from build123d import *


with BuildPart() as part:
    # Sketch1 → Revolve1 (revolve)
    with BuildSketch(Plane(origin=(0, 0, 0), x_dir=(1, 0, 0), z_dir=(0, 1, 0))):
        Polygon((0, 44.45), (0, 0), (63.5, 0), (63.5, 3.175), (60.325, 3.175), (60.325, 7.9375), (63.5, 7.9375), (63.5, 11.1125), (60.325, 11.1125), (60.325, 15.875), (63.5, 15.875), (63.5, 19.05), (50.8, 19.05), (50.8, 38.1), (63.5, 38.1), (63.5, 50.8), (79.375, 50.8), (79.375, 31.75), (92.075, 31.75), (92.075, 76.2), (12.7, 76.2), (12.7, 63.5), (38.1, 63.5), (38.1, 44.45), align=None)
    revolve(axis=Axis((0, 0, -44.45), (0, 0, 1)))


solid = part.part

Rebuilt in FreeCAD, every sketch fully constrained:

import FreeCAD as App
import Part
import Sketcher

V = App.Vector
Q = App.Units.Quantity

doc = App.newDocument("Part")
params = doc.addObject("Spreadsheet::Sheet", "Params")
for row, (alias, value) in enumerate([
    ("sketch1_width", "1 in"),
    ("sketch1_width2", "2.5 in"),
    ("sketch1_width3", "0.5 in"),
    ("sketch1_width4", "1.5 in"),
    ("sketch1_width5", "0.625 in"),
    ("revolution_angle", "360 deg"),
], start=1):
    params.set(f"A{row}", alias)
    params.set(f"B{row}", "=" + value)
    params.setAlias(f"B{row}", alias)

body = doc.addObject("PartDesign::Body", "Body")

sketch1 = body.newObject("Sketcher::SketchObject", "Sketch")
sketch1.AttachmentSupport = (doc.getObject("XZ_Plane"), [""])
sketch1.MapMode = "FlatFace"
sketch1.addGeometry([
    Part.LineSegment(V(0, -44.5, 0), V(0, 0, 0)),
    Part.LineSegment(V(0, 0, 0), V(63.5, 0, 0)),
    Part.LineSegment(V(63.5, 0, 0), V(63.5, -3.2, 0)),
    Part.LineSegment(V(63.5, -3.2, 0), V(60.3, -3.2, 0)),
    Part.LineSegment(V(60.3, -3.2, 0), V(60.3, -7.9, 0)),
    Part.LineSegment(V(60.3, -7.9, 0), V(63.5, -7.9, 0)),
    Part.LineSegment(V(63.5, -7.9, 0), V(63.5, -11.1, 0)),
    Part.LineSegment(V(63.5, -11.1, 0), V(60.3, -11.1, 0)),
    Part.LineSegment(V(60.3, -11.1, 0), V(60.3, -15.9, 0)),
    Part.LineSegment(V(60.3, -15.9, 0), V(63.5, -15.9, 0)),
    Part.LineSegment(V(63.5, -15.9, 0), V(63.5, -19.1, 0)),
    Part.LineSegment(V(63.5, -19.1, 0), V(50.8, -19.1, 0)),
    Part.LineSegment(V(50.8, -19.1, 0), V(50.8, -38.1, 0)),
    Part.LineSegment(V(50.8, -38.1, 0), V(63.5, -38.1, 0)),
    Part.LineSegment(V(63.5, -38.1, 0), V(63.5, -50.8, 0)),
    Part.LineSegment(V(63.5, -50.8, 0), V(79.4, -50.8, 0)),
    Part.LineSegment(V(79.4, -50.8, 0), V(79.4, -31.8, 0)),
    Part.LineSegment(V(79.4, -31.8, 0), V(92.1, -31.8, 0)),
    Part.LineSegment(V(92.1, -31.8, 0), V(92.1, -76.2, 0)),
    Part.LineSegment(V(92.1, -76.2, 0), V(12.7, -76.2, 0)),
    Part.LineSegment(V(12.7, -76.2, 0), V(12.7, -63.5, 0)),
    Part.LineSegment(V(12.7, -63.5, 0), V(38.1, -63.5, 0)),
    Part.LineSegment(V(38.1, -63.5, 0), V(38.1, -44.5, 0)),
    Part.LineSegment(V(38.1, -44.5, 0), V(0, -44.5, 0)),
], False)
sketch1.addConstraint([
    Sketcher.Constraint("Coincident", 0, 2, 1, 1),
    Sketcher.Constraint("Coincident", 1, 2, 2, 1),
    Sketcher.Constraint("Coincident", 2, 2, 3, 1),
    Sketcher.Constraint("Coincident", 3, 2, 4, 1),
    Sketcher.Constraint("Coincident", 4, 2, 5, 1),
    Sketcher.Constraint("Coincident", 5, 2, 6, 1),
    Sketcher.Constraint("Coincident", 6, 2, 7, 1),
    Sketcher.Constraint("Coincident", 7, 2, 8, 1),
    Sketcher.Constraint("Coincident", 8, 2, 9, 1),
    Sketcher.Constraint("Coincident", 9, 2, 10, 1),
    Sketcher.Constraint("Coincident", 10, 2, 11, 1),
    Sketcher.Constraint("Coincident", 11, 2, 12, 1),
    Sketcher.Constraint("Coincident", 12, 2, 13, 1),
    Sketcher.Constraint("Coincident", 13, 2, 14, 1),
    Sketcher.Constraint("Coincident", 14, 2, 15, 1),
    Sketcher.Constraint("Coincident", 15, 2, 16, 1),
    Sketcher.Constraint("Coincident", 16, 2, 17, 1),
    Sketcher.Constraint("Coincident", 17, 2, 18, 1),
    Sketcher.Constraint("Coincident", 18, 2, 19, 1),
    Sketcher.Constraint("Coincident", 19, 2, 20, 1),
    Sketcher.Constraint("Coincident", 20, 2, 21, 1),
    Sketcher.Constraint("Coincident", 21, 2, 22, 1),
    Sketcher.Constraint("Coincident", 22, 2, 23, 1),
    Sketcher.Constraint("Coincident", 23, 2, 0, 1),
    Sketcher.Constraint("Vertical", 0),
    Sketcher.Constraint("Horizontal", 1),
    Sketcher.Constraint("Vertical", 2),
    Sketcher.Constraint("Horizontal", 3),
    Sketcher.Constraint("Vertical", 4),
    Sketcher.Constraint("Horizontal", 5),
    Sketcher.Constraint("Vertical", 6),
    Sketcher.Constraint("Horizontal", 7),
    Sketcher.Constraint("Vertical", 8),
    Sketcher.Constraint("Horizontal", 9),
    Sketcher.Constraint("Vertical", 10),
    Sketcher.Constraint("Horizontal", 11),
    Sketcher.Constraint("Vertical", 12),
    Sketcher.Constraint("Horizontal", 13),
    Sketcher.Constraint("Vertical", 14),
    Sketcher.Constraint("Horizontal", 15),
    Sketcher.Constraint("Vertical", 16),
    Sketcher.Constraint("Horizontal", 17),
    Sketcher.Constraint("Vertical", 18),
    Sketcher.Constraint("Horizontal", 19),
    Sketcher.Constraint("Vertical", 20),
    Sketcher.Constraint("Horizontal", 21),
    Sketcher.Constraint("Vertical", 22),
    Sketcher.Constraint("Horizontal", 23),
    Sketcher.Constraint("Coincident", 0, 2, -1, 1),
    Sketcher.Constraint("Vertical", 2, 2, 5, 2),
    Sketcher.Constraint("Vertical", 4, 2, 7, 2),
    Sketcher.Constraint("Vertical", 6, 2, 9, 2),
    Sketcher.Constraint("Vertical", 10, 2, 13, 2),
    Sketcher.Constraint("Equal", 13, 17),
    Sketcher.Constraint("Equal", 9, 2),
    Sketcher.Constraint("Equal", 2, 6),
    Sketcher.Constraint("Equal", 4, 8),
    Sketcher.Constraint("Equal", 6, 10),
    Sketcher.Constraint("Equal", 17, 14),
    Sketcher.Constraint("Equal", 12, 16),
    Sketcher.Constraint("Equal", 0, 18),
    Sketcher.Constraint("Equal", 14, 20),
    Sketcher.Constraint("Equal", 16, 22),
    Sketcher.Constraint("DistanceX", 21, 1, 21, 2, Q("1 in")),
    Sketcher.Constraint("DistanceX", 1, 1, 1, 2, Q("2.5 in")),
    Sketcher.Constraint("DistanceX", 11, 2, 11, 1, Q("0.5 in")),
    Sketcher.Constraint("DistanceX", 23, 2, 23, 1, Q("1.5 in")),
    Sketcher.Constraint("DistanceY", 14, 2, -1, 1, Q("2 in")),
    Sketcher.Constraint("DistanceY", 18, 2, -1, 1, Q("3 in")),
    Sketcher.Constraint("DistanceY", 8, 2, 3, 2, Q("0.5 in")),
    Sketcher.Constraint("DistanceX", 15, 1, 15, 2, Q("0.625 in")),
])
sketch1.setExpression("Constraints[63]", "Params.sketch1_width")
sketch1.setExpression("Constraints[64]", "Params.sketch1_width2")
sketch1.setExpression("Constraints[65]", "Params.sketch1_width3")
sketch1.setExpression("Constraints[66]", "Params.sketch1_width4")
sketch1.setExpression("Constraints[70]", "Params.sketch1_width5")
revolution = body.newObject("PartDesign::Revolution", "Revolution")
revolution.Profile = sketch1
revolution.ReferenceAxis = (sketch1, ["V_Axis"])
revolution.setExpression("Angle", "Params.revolution_angle")

doc.recompute()
